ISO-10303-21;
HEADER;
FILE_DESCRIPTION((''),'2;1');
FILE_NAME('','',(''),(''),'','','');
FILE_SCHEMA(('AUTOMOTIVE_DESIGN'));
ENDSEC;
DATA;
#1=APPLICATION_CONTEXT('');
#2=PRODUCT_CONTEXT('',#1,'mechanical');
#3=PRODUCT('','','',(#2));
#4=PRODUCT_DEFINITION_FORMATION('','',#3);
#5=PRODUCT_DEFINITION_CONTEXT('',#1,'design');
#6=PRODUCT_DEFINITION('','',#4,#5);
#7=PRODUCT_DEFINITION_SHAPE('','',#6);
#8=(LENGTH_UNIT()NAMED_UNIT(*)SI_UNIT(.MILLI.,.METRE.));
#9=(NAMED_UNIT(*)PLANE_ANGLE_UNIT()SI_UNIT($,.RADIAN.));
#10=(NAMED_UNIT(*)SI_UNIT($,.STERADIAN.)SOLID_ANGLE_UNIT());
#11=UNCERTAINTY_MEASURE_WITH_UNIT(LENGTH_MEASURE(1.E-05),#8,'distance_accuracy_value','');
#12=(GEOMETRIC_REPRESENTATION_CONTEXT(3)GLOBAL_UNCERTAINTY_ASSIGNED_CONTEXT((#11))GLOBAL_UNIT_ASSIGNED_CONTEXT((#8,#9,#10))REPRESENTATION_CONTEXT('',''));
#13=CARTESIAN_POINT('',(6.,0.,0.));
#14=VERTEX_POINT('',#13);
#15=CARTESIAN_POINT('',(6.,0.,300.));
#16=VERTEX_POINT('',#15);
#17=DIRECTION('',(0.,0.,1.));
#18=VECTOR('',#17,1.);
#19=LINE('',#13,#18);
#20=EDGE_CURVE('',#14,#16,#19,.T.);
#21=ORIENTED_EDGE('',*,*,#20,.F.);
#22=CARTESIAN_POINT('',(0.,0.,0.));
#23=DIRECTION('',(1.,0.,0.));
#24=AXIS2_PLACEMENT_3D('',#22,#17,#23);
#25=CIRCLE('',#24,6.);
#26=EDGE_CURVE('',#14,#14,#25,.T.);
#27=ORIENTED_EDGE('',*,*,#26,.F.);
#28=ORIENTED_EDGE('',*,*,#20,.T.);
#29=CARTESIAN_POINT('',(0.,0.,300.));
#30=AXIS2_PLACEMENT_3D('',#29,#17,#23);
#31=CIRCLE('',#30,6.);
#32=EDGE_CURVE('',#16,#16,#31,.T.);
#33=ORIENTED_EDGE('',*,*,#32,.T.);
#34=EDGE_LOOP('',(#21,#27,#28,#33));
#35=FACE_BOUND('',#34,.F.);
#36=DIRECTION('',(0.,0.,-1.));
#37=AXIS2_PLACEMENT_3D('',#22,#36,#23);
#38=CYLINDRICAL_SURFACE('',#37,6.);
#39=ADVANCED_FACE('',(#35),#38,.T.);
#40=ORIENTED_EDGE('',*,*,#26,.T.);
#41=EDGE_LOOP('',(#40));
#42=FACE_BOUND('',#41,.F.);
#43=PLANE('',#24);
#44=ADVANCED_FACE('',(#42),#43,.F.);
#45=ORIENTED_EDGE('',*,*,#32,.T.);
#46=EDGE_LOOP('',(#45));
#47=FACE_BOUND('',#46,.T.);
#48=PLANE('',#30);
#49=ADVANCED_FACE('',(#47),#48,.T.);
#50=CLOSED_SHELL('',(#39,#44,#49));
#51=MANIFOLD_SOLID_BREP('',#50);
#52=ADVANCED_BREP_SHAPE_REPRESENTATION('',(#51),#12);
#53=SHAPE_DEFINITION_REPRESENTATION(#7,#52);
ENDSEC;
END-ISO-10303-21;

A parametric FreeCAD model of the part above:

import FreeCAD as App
import Part
import Sketcher

doc = App.newDocument("Part")
body = doc.addObject("PartDesign::Body", "Body")

sketch1 = body.newObject("Sketcher::SketchObject", "Sketch")
sketch1.AttachmentSupport = (doc.getObject("XY_Plane"), [""])
sketch1.MapMode = "FlatFace"
sketch1.addGeometry(Part.Circle(App.Vector(0, 0, 0), App.Vector(0, 0, 1), 6), False)
sketch1.addConstraint([
    Sketcher.Constraint("Coincident", 0, 3, -1, 1),
    Sketcher.Constraint("Diameter", 0, 12.0),
])
pad1 = body.newObject("PartDesign::Pad", "Pad")
pad1.Profile = sketch1
pad1.Length = 300

doc.recompute()
